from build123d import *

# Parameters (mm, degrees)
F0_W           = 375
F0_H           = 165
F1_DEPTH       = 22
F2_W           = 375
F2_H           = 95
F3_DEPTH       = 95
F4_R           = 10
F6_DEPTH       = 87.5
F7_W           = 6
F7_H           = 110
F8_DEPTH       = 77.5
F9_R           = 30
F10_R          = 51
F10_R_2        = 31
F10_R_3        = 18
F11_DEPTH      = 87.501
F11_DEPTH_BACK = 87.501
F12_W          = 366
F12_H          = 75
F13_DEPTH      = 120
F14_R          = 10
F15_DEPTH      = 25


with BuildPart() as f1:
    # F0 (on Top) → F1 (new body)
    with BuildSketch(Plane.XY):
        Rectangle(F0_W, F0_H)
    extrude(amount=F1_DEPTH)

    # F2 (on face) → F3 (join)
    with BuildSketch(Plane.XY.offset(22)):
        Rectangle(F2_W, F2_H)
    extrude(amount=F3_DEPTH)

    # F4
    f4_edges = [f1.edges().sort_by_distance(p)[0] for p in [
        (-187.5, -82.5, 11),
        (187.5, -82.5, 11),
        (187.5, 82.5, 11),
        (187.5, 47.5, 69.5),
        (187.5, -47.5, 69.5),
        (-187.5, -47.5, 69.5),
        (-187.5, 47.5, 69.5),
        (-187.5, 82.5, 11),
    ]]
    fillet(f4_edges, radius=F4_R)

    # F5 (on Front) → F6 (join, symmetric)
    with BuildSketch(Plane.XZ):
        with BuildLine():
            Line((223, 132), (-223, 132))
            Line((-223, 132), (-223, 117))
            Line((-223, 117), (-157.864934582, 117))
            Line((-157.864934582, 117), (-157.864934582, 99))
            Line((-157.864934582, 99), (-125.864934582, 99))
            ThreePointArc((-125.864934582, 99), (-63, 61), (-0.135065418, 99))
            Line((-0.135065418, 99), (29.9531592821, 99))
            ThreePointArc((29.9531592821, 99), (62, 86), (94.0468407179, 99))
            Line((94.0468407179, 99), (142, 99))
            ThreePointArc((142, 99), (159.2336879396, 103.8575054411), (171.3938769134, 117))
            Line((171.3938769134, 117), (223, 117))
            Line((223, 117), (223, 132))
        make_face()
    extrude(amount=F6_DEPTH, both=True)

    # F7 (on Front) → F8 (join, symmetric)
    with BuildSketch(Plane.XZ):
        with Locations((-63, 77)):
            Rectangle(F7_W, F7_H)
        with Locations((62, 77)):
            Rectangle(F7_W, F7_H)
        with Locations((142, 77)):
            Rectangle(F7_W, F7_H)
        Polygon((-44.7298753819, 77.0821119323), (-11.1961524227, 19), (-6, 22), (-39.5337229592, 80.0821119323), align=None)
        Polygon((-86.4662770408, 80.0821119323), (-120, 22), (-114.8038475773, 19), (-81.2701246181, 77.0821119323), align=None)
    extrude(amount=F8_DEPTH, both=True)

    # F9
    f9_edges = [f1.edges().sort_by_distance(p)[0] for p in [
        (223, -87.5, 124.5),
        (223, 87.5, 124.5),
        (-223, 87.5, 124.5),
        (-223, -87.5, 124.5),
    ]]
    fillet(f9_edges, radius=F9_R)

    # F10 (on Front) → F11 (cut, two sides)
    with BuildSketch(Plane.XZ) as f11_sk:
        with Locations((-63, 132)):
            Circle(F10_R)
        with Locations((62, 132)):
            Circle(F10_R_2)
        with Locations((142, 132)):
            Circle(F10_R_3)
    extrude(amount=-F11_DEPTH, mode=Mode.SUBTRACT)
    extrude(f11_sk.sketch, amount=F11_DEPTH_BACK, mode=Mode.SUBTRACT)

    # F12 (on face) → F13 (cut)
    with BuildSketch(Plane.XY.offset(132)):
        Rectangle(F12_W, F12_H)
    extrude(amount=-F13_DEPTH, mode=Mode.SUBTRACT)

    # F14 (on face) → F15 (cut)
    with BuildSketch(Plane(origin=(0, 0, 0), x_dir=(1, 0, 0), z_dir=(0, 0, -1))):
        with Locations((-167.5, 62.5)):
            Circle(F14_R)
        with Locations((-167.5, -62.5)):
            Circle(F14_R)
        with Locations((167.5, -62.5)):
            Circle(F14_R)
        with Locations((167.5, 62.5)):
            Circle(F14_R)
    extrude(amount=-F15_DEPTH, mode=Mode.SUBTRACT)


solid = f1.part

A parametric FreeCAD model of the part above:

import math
import FreeCAD as App
import Part
import Sketcher

V = App.Vector
Q = App.Units.Quantity


def edges_at(feature, points):
    """Names of the edges that pass closest to the given points."""
    edges = feature.Shape.Edges
    near = lambda p: min(range(len(edges)), key=lambda i: edges[i].distToShape(Part.Vertex(*p))[0])
    return sorted({f"Edge{near(p) + 1}" for p in points})


def add_polygon(sketch, points):
    """Adds a closed chain of lines whose ends are joined by coincident constraints."""
    first, n = sketch.GeometryCount, len(points)
    for a, b in zip(points, points[1:] + points[:1]):
        sketch.addGeometry(Part.LineSegment(App.Vector(*a, 0), App.Vector(*b, 0)), False)
    for i in range(n):
        sketch.addConstraint(Sketcher.Constraint("Coincident", first + i, 2, first + (i + 1) % n, 1))

doc = App.newDocument("Part")
params = doc.addObject("Spreadsheet::Sheet", "Params")
for row, (alias, value) in enumerate([
    ("sketch1_width", "375 mm"),
    ("sketch1_height", "165 mm"),
    ("pad1_length", "22 mm"),
    ("sketch2_width", "375 mm"),
    ("sketch2_height", "95 mm"),
    ("pad2_length", "95 mm"),
    ("fillet_radius", "10 mm"),
    ("sketch3_radius", "71 mm"),
    ("sketch3_radius2", "46 mm"),
    ("sketch3_radius3", "33 mm"),
    ("sketch3_width", "446 mm"),
    ("sketch3_width2", "32 mm"),
    ("pad3_length", "175 mm"),
    ("sketch4_width", "6 mm"),
    ("sketch4_height", "110 mm"),
    ("sketch4_length", "6 mm"),
    ("pad4_length", "155 mm"),
    ("fillet2_radius", "30 mm"),
    ("sketch5_diameter", "102 mm"),
    ("sketch5_diameter2", "62 mm"),
    ("sketch5_diameter3", "36 mm"),
    ("sketch6_width", "366 mm"),
    ("sketch6_height", "75 mm"),
    ("pocket2_length", "120 mm"),
    ("sketch7_diameter", "20 mm"),
    ("pocket3_length", "25 mm"),
], start=1):
    params.set(f"A{row}", alias)
    params.set(f"B{row}", "=" + value)
    params.setAlias(f"B{row}", alias)

body = doc.addObject("PartDesign::Body", "Body")

# Sketch on XY plane
sketch1 = body.newObject("Sketcher::SketchObject", "Sketch")
sketch1.AttachmentSupport = (doc.getObject("XY_Plane"), [""])
sketch1.MapMode = "FlatFace"
add_polygon(sketch1, [(-188, 82), (-188, -82), (188, -82), (188, 82)])  # lines 0-3
sketch1.addConstraint([
    Sketcher.Constraint("Vertical", 0),
    Sketcher.Constraint("Horizontal", 1),
    Sketcher.Constraint("Vertical", 2),
    Sketcher.Constraint("Horizontal", 3),
    Sketcher.Constraint("Symmetric", 0, 2, 2, 2, -1, 1),
    Sketcher.Constraint("DistanceX", 1, 1, 1, 2, 375.0),
    Sketcher.Constraint("DistanceY", 0, 2, 0, 1, 165.0),
])
sketch1.setExpression("Constraints[9]", "Params.sketch1_width")
sketch1.setExpression("Constraints[10]", "Params.sketch1_height")
pad1 = body.newObject("PartDesign::Pad", "Pad")
pad1.Profile = sketch1
pad1.setExpression("Length", "Params.pad1_length")

# Sketch on XY plane
sketch2 = body.newObject("Sketcher::SketchObject", "Sketch001")
sketch2.AttachmentSupport = (doc.getObject("XY_Plane"), [""])
sketch2.MapMode = "FlatFace"
sketch2.AttachmentOffset = App.Placement(V(0, 0, 22), App.Rotation())
add_polygon(sketch2, [(-188, 48), (-188, -48), (188, -48), (188, 48)])  # lines 0-3
sketch2.addConstraint([
    Sketcher.Constraint("Vertical", 0),
    Sketcher.Constraint("Horizontal", 1),
    Sketcher.Constraint("Vertical", 2),
    Sketcher.Constraint("Horizontal", 3),
    Sketcher.Constraint("Symmetric", 0, 2, 2, 2, -1, 1),
    Sketcher.Constraint("DistanceX", 1, 1, 1, 2, 375.0),
    Sketcher.Constraint("DistanceY", 0, 2, 0, 1, 95.0),
])
sketch2.setExpression("Constraints[9]", "Params.sketch2_width")
sketch2.setExpression("Constraints[10]", "Params.sketch2_height")
pad2 = body.newObject("PartDesign::Pad", "Pad001")
pad2.Profile = sketch2
pad2.setExpression("Length", "Params.pad2_length")
doc.recompute()

fillet = body.newObject("PartDesign::Fillet", "Fillet")
fillet.Base = (pad2, edges_at(pad2, [
    (-187.5, -82.5, 11),
    (187.5, -82.5, 11),
    (187.5, 82.5, 11),
    (187.5, 47.5, 69.5),
    (187.5, -47.5, 69.5),
    (-187.5, -47.5, 69.5),
    (-187.5, 47.5, 69.5),
    (-187.5, 82.5, 11),
]))
fillet.setExpression("Radius", "Params.fillet_radius")

# Sketch on XZ plane
sketch3 = body.newObject("Sketcher::SketchObject", "Sketch002")
sketch3.AttachmentSupport = (doc.getObject("XZ_Plane"), [""])
sketch3.MapMode = "FlatFace"
sketch3.addGeometry([
    Part.LineSegment(V(223, 132, 0), V(-223, 132, 0)),  # 0
    Part.LineSegment(V(-223, 132, 0), V(-223, 117, 0)),  # 1
    Part.LineSegment(V(-223, 117, 0), V(-158, 117, 0)),  # 2
    Part.LineSegment(V(-158, 117, 0), V(-158, 99, 0)),  # 3
    Part.LineSegment(V(-158, 99, 0), V(-126, 99, 0)),  # 4
    Part.ArcOfCircle(Part.Circle(V(-63, 132, 0), V(0, 0, 1), 71), math.radians(-152), math.radians(-28)),  # 5
    Part.LineSegment(V(0, 99, 0), V(30, 99, 0)),  # 6
    Part.ArcOfCircle(Part.Circle(V(62, 132, 0), V(0, 0, 1), 46), math.radians(-134), math.radians(-46)),  # 7
    Part.LineSegment(V(94, 99, 0), V(142, 99, 0)),  # 8
    Part.ArcOfCircle(Part.Circle(V(142, 132, 0), V(0, 0, 1), 33), math.radians(-90), math.radians(-27)),  # 9
    Part.LineSegment(V(171, 117, 0), V(223, 117, 0)),  # 10
    Part.LineSegment(V(223, 117, 0), V(223, 132, 0)),  # 11
], False)
sketch3.addConstraint([
    Sketcher.Constraint("Coincident", 0, 2, 1, 1),
    Sketcher.Constraint("Coincident", 1, 2, 2, 1),
    Sketcher.Constraint("Coincident", 2, 2, 3, 1),
    Sketcher.Constraint("Coincident", 3, 2, 4, 1),
    Sketcher.Constraint("Coincident", 4, 2, 5, 1),
    Sketcher.Constraint("Coincident", 5, 2, 6, 1),
    Sketcher.Constraint("Coincident", 6, 2, 7, 1),
    Sketcher.Constraint("Coincident", 7, 2, 8, 1),
    Sketcher.Constraint("Tangent", 8, 2, 9, 1),
    Sketcher.Constraint("Coincident", 9, 2, 10, 1),
    Sketcher.Constraint("Coincident", 10, 2, 11, 1),
    Sketcher.Constraint("Coincident", 11, 2, 0, 1),
    Sketcher.Constraint("Horizontal", 0),
    Sketcher.Constraint("Vertical", 1),
    Sketcher.Constraint("Horizontal", 2),
    Sketcher.Constraint("Vertical", 3),
    Sketcher.Constraint("Horizontal", 4),
    Sketcher.Constraint("Horizontal", 6),
    Sketcher.Constraint("Horizontal", 8),
    Sketcher.Constraint("Horizontal", 10),
    Sketcher.Constraint("Vertical", 11),
    Sketcher.Constraint("Symmetric", 1, 2, 10, 2, -2),
    Sketcher.Constraint("Horizontal", 5, 3, 7, 3),
    Sketcher.Constraint("Horizontal", 7, 3, 9, 3),
    Sketcher.Constraint("Horizontal", 9, 3, 0, 2),
    Sketcher.Constraint("Horizontal", 4, 2, 5, 2),
    Sketcher.Constraint("Horizontal", 6, 2, 7, 2),
    Sketcher.Constraint("Radius", 5, 71.0),
    Sketcher.Constraint("Radius", 7, 46.0),
    Sketcher.Constraint("Radius", 9, 33.0),
    Sketcher.Constraint("DistanceX", 0, 2, 0, 1, 446.0),
    Sketcher.Constraint("DistanceX", 4, 1, 4, 2, 32.0),
    Sketcher.Constraint("DistanceY", 1, 2, 1, 1, 15.0),
    Sketcher.Constraint("DistanceX", 5, 3, -1, 1, 63.0),
    Sketcher.Constraint("DistanceY", -1, 1, 5, 3, 132.0),
    Sketcher.Constraint("DistanceX", -1, 1, 7, 3, 62.0),
    Sketcher.Constraint("DistanceX", -1, 1, 9, 3, 142.0),
])
sketch3.setExpression("Constraints[27]", "Params.sketch3_radius")
sketch3.setExpression("Constraints[28]", "Params.sketch3_radius2")
sketch3.setExpression("Constraints[29]", "Params.sketch3_radius3")
sketch3.setExpression("Constraints[30]", "Params.sketch3_width")
sketch3.setExpression("Constraints[31]", "Params.sketch3_width2")
pad3 = body.newObject("PartDesign::Pad", "Pad002")
pad3.Profile = sketch3
pad3.setExpression("Length", "Params.pad3_length")
pad3.Midplane = True

# Sketch on XZ plane
sketch4 = body.newObject("Sketcher::SketchObject", "Sketch003")
sketch4.AttachmentSupport = (doc.getObject("XZ_Plane"), [""])
sketch4.MapMode = "FlatFace"
add_polygon(sketch4, [(-66, 132), (-66, 22), (-60, 22), (-60, 132)])  # lines 0-3
add_polygon(sketch4, [(59, 132), (59, 22), (65, 22), (65, 132)])  # lines 4-7
add_polygon(sketch4, [(139, 132), (139, 22), (145, 22), (145, 132)])  # lines 8-11
add_polygon(sketch4, [(-45, 77), (-11, 19), (-6, 22), (-40, 80)])  # lines 12-15
add_polygon(sketch4, [(-86, 80), (-120, 22), (-115, 19), (-81, 77)])  # lines 16-19
sketch4.addConstraint([
    Sketcher.Constraint("Vertical", 0),
    Sketcher.Constraint("Horizontal", 1),
    Sketcher.Constraint("Vertical", 2),
    Sketcher.Constraint("Horizontal", 3),
    Sketcher.Constraint("Vertical", 4),
    Sketcher.Constraint("Horizontal", 5),
    Sketcher.Constraint("Vertical", 6),
    Sketcher.Constraint("Horizontal", 7),
    Sketcher.Constraint("Vertical", 8),
    Sketcher.Constraint("Horizontal", 9),
    Sketcher.Constraint("Vertical", 10),
    Sketcher.Constraint("Horizontal", 11),
    Sketcher.Constraint("Perpendicular", 12, 13),
    Sketcher.Constraint("Perpendicular", 13, 14),
    Sketcher.Constraint("Perpendicular", 14, 15),
    Sketcher.Constraint("Perpendicular", 16, 17),
    Sketcher.Constraint("Perpendicular", 17, 18),
    Sketcher.Constraint("Perpendicular", 18, 19),
    Sketcher.Constraint("Horizontal", 1, 2, 4, 2),
    Sketcher.Constraint("Horizontal", 3, 2, 6, 2),
    Sketcher.Constraint("Horizontal", 5, 2, 8, 2),
    Sketcher.Constraint("Horizontal", 7, 2, 10, 2),
    Sketcher.Constraint("Horizontal", 9, 2, 13, 2),
    Sketcher.Constraint("Horizontal", 13, 2, 16, 2),
    Sketcher.Constraint("Horizontal", 12, 2, 17, 2),
    Sketcher.Constraint("Horizontal", 15, 2, 18, 2),
    Sketcher.Constraint("Equal", 3, 5),
    Sketcher.Constraint("Equal", 7, 9),
    Sketcher.Constraint("Equal", 14, 16),
    Sketcher.Constraint("DistanceX", 1, 1, 1, 2, 6.0),
    Sketcher.Constraint("DistanceY", 0, 2, 0, 1, 110.0),
    Sketcher.Constraint("Angle", 12, Q("-60 deg")),
    Sketcher.Constraint("Distance", 13, 6.0),
    Sketcher.Constraint("DistanceX", 0, 2, -1, 1, 66.0),
    Sketcher.Constraint("DistanceY", -1, 1, 0, 2, 22.0),
    Sketcher.Constraint("DistanceX", -1, 1, 4, 2, 59.0),
    Sketcher.Constraint("DistanceX", -1, 1, 8, 2, 139.0),
    Sketcher.Constraint("DistanceX", 13, 2, -1, 1, 6.0),
    Sketcher.Constraint("DistanceX", 16, 2, -1, 1, 120.0),
    Sketcher.Constraint("DistanceX", 18, 2, 14, 2, 41.736402),
])
sketch4.setExpression("Constraints[49]", "Params.sketch4_width")
sketch4.setExpression("Constraints[50]", "Params.sketch4_height")
sketch4.setExpression("Constraints[52]", "Params.sketch4_length")
pad4 = body.newObject("PartDesign::Pad", "Pad003")
pad4.Profile = sketch4
pad4.setExpression("Length", "Params.pad4_length")
pad4.Midplane = True
doc.recompute()

fillet2 = body.newObject("PartDesign::Fillet", "Fillet001")
fillet2.Base = (pad4, edges_at(pad4, [
    (223, -87.5, 124.5),
    (223, 87.5, 124.5),
    (-223, 87.5, 124.5),
    (-223, -87.5, 124.5),
]))
fillet2.setExpression("Radius", "Params.fillet2_radius")

# Sketch on XZ plane
sketch5 = body.newObject("Sketcher::SketchObject", "Sketch004")
sketch5.AttachmentSupport = (doc.getObject("XZ_Plane"), [""])
sketch5.MapMode = "FlatFace"
sketch5.addGeometry([
    Part.Circle(V(-63, 132, 0), V(0, 0, 1), 51),
    Part.Circle(V(62, 132, 0), V(0, 0, 1), 31),
    Part.Circle(V(142, 132, 0), V(0, 0, 1), 18),
], False)
sketch5.addConstraint([
    Sketcher.Constraint("Horizontal", 0, 3, 1, 3),
    Sketcher.Constraint("Horizontal", 1, 3, 2, 3),
    Sketcher.Constraint("Diameter", 0, 102.0),
    Sketcher.Constraint("Diameter", 1, 62.0),
    Sketcher.Constraint("Diameter", 2, 36.0),
    Sketcher.Constraint("DistanceX", 0, 3, -1, 1, 63.0),
    Sketcher.Constraint("DistanceY", -1, 1, 0, 3, 132.0),
    Sketcher.Constraint("DistanceX", -1, 1, 1, 3, 62.0),
    Sketcher.Constraint("DistanceX", -1, 1, 2, 3, 142.0),
])
sketch5.setExpression("Constraints[2]", "Params.sketch5_diameter")
sketch5.setExpression("Constraints[3]", "Params.sketch5_diameter2")
sketch5.setExpression("Constraints[4]", "Params.sketch5_diameter3")
pocket1 = body.newObject("PartDesign::Pocket", "Pocket")
pocket1.Profile = sketch5
pocket1.Type = "ThroughAll"
pocket1.Midplane = True

# Sketch on XY plane
sketch6 = body.newObject("Sketcher::SketchObject", "Sketch005")
sketch6.AttachmentSupport = (doc.getObject("XY_Plane"), [""])
sketch6.MapMode = "FlatFace"
sketch6.AttachmentOffset = App.Placement(V(0, 0, 132), App.Rotation())
add_polygon(sketch6, [(-183, 38), (-183, -38), (183, -38), (183, 38)])  # lines 0-3
sketch6.addConstraint([
    Sketcher.Constraint("Vertical", 0),
    Sketcher.Constraint("Horizontal", 1),
    Sketcher.Constraint("Vertical", 2),
    Sketcher.Constraint("Horizontal", 3),
    Sketcher.Constraint("Symmetric", 0, 2, 2, 2, -1, 1),
    Sketcher.Constraint("DistanceX", 1, 1, 1, 2, 366.0),
    Sketcher.Constraint("DistanceY", 0, 2, 0, 1, 75.0),
])
sketch6.setExpression("Constraints[9]", "Params.sketch6_width")
sketch6.setExpression("Constraints[10]", "Params.sketch6_height")
pocket2 = body.newObject("PartDesign::Pocket", "Pocket001")
pocket2.Profile = sketch6
pocket2.setExpression("Length", "Params.pocket2_length")

# Sketch on XY plane
sketch7 = body.newObject("Sketcher::SketchObject", "Sketch006")
sketch7.AttachmentSupport = (doc.getObject("XY_Plane"), [""])
sketch7.MapMode = "FlatFace"
sketch7.addGeometry([
    Part.Circle(V(-168, -62, 0), V(0, 0, 1), 10),
    Part.Circle(V(-168, 62, 0), V(0, 0, 1), 10),
    Part.Circle(V(168, 62, 0), V(0, 0, 1), 10),
    Part.Circle(V(168, -62, 0), V(0, 0, 1), 10),
], False)
sketch7.addConstraint([
    Sketcher.Constraint("Equal", 0, 1),
    Sketcher.Constraint("Equal", 1, 2),
    Sketcher.Constraint("Equal", 2, 3),
    Sketcher.Constraint("Symmetric", 0, 3, 2, 3, -1, 1),
    Sketcher.Constraint("Symmetric", 1, 3, 3, 3, -1, 1),
    Sketcher.Constraint("Symmetric", 1, 3, 2, 3, -2),
    Sketcher.Constraint("Diameter", 0, 20.0),
    Sketcher.Constraint("DistanceY", 0, 3, 1, 3, 125.0),
    Sketcher.Constraint("DistanceX", 1, 3, 2, 3, 335.0),
])
sketch7.setExpression("Constraints[6]", "Params.sketch7_diameter")
pocket3 = body.newObject("PartDesign::Pocket", "Pocket002")
pocket3.Profile = sketch7
pocket3.setExpression("Length", "Params.pocket3_length")
pocket3.Reversed = True

doc.recompute()
